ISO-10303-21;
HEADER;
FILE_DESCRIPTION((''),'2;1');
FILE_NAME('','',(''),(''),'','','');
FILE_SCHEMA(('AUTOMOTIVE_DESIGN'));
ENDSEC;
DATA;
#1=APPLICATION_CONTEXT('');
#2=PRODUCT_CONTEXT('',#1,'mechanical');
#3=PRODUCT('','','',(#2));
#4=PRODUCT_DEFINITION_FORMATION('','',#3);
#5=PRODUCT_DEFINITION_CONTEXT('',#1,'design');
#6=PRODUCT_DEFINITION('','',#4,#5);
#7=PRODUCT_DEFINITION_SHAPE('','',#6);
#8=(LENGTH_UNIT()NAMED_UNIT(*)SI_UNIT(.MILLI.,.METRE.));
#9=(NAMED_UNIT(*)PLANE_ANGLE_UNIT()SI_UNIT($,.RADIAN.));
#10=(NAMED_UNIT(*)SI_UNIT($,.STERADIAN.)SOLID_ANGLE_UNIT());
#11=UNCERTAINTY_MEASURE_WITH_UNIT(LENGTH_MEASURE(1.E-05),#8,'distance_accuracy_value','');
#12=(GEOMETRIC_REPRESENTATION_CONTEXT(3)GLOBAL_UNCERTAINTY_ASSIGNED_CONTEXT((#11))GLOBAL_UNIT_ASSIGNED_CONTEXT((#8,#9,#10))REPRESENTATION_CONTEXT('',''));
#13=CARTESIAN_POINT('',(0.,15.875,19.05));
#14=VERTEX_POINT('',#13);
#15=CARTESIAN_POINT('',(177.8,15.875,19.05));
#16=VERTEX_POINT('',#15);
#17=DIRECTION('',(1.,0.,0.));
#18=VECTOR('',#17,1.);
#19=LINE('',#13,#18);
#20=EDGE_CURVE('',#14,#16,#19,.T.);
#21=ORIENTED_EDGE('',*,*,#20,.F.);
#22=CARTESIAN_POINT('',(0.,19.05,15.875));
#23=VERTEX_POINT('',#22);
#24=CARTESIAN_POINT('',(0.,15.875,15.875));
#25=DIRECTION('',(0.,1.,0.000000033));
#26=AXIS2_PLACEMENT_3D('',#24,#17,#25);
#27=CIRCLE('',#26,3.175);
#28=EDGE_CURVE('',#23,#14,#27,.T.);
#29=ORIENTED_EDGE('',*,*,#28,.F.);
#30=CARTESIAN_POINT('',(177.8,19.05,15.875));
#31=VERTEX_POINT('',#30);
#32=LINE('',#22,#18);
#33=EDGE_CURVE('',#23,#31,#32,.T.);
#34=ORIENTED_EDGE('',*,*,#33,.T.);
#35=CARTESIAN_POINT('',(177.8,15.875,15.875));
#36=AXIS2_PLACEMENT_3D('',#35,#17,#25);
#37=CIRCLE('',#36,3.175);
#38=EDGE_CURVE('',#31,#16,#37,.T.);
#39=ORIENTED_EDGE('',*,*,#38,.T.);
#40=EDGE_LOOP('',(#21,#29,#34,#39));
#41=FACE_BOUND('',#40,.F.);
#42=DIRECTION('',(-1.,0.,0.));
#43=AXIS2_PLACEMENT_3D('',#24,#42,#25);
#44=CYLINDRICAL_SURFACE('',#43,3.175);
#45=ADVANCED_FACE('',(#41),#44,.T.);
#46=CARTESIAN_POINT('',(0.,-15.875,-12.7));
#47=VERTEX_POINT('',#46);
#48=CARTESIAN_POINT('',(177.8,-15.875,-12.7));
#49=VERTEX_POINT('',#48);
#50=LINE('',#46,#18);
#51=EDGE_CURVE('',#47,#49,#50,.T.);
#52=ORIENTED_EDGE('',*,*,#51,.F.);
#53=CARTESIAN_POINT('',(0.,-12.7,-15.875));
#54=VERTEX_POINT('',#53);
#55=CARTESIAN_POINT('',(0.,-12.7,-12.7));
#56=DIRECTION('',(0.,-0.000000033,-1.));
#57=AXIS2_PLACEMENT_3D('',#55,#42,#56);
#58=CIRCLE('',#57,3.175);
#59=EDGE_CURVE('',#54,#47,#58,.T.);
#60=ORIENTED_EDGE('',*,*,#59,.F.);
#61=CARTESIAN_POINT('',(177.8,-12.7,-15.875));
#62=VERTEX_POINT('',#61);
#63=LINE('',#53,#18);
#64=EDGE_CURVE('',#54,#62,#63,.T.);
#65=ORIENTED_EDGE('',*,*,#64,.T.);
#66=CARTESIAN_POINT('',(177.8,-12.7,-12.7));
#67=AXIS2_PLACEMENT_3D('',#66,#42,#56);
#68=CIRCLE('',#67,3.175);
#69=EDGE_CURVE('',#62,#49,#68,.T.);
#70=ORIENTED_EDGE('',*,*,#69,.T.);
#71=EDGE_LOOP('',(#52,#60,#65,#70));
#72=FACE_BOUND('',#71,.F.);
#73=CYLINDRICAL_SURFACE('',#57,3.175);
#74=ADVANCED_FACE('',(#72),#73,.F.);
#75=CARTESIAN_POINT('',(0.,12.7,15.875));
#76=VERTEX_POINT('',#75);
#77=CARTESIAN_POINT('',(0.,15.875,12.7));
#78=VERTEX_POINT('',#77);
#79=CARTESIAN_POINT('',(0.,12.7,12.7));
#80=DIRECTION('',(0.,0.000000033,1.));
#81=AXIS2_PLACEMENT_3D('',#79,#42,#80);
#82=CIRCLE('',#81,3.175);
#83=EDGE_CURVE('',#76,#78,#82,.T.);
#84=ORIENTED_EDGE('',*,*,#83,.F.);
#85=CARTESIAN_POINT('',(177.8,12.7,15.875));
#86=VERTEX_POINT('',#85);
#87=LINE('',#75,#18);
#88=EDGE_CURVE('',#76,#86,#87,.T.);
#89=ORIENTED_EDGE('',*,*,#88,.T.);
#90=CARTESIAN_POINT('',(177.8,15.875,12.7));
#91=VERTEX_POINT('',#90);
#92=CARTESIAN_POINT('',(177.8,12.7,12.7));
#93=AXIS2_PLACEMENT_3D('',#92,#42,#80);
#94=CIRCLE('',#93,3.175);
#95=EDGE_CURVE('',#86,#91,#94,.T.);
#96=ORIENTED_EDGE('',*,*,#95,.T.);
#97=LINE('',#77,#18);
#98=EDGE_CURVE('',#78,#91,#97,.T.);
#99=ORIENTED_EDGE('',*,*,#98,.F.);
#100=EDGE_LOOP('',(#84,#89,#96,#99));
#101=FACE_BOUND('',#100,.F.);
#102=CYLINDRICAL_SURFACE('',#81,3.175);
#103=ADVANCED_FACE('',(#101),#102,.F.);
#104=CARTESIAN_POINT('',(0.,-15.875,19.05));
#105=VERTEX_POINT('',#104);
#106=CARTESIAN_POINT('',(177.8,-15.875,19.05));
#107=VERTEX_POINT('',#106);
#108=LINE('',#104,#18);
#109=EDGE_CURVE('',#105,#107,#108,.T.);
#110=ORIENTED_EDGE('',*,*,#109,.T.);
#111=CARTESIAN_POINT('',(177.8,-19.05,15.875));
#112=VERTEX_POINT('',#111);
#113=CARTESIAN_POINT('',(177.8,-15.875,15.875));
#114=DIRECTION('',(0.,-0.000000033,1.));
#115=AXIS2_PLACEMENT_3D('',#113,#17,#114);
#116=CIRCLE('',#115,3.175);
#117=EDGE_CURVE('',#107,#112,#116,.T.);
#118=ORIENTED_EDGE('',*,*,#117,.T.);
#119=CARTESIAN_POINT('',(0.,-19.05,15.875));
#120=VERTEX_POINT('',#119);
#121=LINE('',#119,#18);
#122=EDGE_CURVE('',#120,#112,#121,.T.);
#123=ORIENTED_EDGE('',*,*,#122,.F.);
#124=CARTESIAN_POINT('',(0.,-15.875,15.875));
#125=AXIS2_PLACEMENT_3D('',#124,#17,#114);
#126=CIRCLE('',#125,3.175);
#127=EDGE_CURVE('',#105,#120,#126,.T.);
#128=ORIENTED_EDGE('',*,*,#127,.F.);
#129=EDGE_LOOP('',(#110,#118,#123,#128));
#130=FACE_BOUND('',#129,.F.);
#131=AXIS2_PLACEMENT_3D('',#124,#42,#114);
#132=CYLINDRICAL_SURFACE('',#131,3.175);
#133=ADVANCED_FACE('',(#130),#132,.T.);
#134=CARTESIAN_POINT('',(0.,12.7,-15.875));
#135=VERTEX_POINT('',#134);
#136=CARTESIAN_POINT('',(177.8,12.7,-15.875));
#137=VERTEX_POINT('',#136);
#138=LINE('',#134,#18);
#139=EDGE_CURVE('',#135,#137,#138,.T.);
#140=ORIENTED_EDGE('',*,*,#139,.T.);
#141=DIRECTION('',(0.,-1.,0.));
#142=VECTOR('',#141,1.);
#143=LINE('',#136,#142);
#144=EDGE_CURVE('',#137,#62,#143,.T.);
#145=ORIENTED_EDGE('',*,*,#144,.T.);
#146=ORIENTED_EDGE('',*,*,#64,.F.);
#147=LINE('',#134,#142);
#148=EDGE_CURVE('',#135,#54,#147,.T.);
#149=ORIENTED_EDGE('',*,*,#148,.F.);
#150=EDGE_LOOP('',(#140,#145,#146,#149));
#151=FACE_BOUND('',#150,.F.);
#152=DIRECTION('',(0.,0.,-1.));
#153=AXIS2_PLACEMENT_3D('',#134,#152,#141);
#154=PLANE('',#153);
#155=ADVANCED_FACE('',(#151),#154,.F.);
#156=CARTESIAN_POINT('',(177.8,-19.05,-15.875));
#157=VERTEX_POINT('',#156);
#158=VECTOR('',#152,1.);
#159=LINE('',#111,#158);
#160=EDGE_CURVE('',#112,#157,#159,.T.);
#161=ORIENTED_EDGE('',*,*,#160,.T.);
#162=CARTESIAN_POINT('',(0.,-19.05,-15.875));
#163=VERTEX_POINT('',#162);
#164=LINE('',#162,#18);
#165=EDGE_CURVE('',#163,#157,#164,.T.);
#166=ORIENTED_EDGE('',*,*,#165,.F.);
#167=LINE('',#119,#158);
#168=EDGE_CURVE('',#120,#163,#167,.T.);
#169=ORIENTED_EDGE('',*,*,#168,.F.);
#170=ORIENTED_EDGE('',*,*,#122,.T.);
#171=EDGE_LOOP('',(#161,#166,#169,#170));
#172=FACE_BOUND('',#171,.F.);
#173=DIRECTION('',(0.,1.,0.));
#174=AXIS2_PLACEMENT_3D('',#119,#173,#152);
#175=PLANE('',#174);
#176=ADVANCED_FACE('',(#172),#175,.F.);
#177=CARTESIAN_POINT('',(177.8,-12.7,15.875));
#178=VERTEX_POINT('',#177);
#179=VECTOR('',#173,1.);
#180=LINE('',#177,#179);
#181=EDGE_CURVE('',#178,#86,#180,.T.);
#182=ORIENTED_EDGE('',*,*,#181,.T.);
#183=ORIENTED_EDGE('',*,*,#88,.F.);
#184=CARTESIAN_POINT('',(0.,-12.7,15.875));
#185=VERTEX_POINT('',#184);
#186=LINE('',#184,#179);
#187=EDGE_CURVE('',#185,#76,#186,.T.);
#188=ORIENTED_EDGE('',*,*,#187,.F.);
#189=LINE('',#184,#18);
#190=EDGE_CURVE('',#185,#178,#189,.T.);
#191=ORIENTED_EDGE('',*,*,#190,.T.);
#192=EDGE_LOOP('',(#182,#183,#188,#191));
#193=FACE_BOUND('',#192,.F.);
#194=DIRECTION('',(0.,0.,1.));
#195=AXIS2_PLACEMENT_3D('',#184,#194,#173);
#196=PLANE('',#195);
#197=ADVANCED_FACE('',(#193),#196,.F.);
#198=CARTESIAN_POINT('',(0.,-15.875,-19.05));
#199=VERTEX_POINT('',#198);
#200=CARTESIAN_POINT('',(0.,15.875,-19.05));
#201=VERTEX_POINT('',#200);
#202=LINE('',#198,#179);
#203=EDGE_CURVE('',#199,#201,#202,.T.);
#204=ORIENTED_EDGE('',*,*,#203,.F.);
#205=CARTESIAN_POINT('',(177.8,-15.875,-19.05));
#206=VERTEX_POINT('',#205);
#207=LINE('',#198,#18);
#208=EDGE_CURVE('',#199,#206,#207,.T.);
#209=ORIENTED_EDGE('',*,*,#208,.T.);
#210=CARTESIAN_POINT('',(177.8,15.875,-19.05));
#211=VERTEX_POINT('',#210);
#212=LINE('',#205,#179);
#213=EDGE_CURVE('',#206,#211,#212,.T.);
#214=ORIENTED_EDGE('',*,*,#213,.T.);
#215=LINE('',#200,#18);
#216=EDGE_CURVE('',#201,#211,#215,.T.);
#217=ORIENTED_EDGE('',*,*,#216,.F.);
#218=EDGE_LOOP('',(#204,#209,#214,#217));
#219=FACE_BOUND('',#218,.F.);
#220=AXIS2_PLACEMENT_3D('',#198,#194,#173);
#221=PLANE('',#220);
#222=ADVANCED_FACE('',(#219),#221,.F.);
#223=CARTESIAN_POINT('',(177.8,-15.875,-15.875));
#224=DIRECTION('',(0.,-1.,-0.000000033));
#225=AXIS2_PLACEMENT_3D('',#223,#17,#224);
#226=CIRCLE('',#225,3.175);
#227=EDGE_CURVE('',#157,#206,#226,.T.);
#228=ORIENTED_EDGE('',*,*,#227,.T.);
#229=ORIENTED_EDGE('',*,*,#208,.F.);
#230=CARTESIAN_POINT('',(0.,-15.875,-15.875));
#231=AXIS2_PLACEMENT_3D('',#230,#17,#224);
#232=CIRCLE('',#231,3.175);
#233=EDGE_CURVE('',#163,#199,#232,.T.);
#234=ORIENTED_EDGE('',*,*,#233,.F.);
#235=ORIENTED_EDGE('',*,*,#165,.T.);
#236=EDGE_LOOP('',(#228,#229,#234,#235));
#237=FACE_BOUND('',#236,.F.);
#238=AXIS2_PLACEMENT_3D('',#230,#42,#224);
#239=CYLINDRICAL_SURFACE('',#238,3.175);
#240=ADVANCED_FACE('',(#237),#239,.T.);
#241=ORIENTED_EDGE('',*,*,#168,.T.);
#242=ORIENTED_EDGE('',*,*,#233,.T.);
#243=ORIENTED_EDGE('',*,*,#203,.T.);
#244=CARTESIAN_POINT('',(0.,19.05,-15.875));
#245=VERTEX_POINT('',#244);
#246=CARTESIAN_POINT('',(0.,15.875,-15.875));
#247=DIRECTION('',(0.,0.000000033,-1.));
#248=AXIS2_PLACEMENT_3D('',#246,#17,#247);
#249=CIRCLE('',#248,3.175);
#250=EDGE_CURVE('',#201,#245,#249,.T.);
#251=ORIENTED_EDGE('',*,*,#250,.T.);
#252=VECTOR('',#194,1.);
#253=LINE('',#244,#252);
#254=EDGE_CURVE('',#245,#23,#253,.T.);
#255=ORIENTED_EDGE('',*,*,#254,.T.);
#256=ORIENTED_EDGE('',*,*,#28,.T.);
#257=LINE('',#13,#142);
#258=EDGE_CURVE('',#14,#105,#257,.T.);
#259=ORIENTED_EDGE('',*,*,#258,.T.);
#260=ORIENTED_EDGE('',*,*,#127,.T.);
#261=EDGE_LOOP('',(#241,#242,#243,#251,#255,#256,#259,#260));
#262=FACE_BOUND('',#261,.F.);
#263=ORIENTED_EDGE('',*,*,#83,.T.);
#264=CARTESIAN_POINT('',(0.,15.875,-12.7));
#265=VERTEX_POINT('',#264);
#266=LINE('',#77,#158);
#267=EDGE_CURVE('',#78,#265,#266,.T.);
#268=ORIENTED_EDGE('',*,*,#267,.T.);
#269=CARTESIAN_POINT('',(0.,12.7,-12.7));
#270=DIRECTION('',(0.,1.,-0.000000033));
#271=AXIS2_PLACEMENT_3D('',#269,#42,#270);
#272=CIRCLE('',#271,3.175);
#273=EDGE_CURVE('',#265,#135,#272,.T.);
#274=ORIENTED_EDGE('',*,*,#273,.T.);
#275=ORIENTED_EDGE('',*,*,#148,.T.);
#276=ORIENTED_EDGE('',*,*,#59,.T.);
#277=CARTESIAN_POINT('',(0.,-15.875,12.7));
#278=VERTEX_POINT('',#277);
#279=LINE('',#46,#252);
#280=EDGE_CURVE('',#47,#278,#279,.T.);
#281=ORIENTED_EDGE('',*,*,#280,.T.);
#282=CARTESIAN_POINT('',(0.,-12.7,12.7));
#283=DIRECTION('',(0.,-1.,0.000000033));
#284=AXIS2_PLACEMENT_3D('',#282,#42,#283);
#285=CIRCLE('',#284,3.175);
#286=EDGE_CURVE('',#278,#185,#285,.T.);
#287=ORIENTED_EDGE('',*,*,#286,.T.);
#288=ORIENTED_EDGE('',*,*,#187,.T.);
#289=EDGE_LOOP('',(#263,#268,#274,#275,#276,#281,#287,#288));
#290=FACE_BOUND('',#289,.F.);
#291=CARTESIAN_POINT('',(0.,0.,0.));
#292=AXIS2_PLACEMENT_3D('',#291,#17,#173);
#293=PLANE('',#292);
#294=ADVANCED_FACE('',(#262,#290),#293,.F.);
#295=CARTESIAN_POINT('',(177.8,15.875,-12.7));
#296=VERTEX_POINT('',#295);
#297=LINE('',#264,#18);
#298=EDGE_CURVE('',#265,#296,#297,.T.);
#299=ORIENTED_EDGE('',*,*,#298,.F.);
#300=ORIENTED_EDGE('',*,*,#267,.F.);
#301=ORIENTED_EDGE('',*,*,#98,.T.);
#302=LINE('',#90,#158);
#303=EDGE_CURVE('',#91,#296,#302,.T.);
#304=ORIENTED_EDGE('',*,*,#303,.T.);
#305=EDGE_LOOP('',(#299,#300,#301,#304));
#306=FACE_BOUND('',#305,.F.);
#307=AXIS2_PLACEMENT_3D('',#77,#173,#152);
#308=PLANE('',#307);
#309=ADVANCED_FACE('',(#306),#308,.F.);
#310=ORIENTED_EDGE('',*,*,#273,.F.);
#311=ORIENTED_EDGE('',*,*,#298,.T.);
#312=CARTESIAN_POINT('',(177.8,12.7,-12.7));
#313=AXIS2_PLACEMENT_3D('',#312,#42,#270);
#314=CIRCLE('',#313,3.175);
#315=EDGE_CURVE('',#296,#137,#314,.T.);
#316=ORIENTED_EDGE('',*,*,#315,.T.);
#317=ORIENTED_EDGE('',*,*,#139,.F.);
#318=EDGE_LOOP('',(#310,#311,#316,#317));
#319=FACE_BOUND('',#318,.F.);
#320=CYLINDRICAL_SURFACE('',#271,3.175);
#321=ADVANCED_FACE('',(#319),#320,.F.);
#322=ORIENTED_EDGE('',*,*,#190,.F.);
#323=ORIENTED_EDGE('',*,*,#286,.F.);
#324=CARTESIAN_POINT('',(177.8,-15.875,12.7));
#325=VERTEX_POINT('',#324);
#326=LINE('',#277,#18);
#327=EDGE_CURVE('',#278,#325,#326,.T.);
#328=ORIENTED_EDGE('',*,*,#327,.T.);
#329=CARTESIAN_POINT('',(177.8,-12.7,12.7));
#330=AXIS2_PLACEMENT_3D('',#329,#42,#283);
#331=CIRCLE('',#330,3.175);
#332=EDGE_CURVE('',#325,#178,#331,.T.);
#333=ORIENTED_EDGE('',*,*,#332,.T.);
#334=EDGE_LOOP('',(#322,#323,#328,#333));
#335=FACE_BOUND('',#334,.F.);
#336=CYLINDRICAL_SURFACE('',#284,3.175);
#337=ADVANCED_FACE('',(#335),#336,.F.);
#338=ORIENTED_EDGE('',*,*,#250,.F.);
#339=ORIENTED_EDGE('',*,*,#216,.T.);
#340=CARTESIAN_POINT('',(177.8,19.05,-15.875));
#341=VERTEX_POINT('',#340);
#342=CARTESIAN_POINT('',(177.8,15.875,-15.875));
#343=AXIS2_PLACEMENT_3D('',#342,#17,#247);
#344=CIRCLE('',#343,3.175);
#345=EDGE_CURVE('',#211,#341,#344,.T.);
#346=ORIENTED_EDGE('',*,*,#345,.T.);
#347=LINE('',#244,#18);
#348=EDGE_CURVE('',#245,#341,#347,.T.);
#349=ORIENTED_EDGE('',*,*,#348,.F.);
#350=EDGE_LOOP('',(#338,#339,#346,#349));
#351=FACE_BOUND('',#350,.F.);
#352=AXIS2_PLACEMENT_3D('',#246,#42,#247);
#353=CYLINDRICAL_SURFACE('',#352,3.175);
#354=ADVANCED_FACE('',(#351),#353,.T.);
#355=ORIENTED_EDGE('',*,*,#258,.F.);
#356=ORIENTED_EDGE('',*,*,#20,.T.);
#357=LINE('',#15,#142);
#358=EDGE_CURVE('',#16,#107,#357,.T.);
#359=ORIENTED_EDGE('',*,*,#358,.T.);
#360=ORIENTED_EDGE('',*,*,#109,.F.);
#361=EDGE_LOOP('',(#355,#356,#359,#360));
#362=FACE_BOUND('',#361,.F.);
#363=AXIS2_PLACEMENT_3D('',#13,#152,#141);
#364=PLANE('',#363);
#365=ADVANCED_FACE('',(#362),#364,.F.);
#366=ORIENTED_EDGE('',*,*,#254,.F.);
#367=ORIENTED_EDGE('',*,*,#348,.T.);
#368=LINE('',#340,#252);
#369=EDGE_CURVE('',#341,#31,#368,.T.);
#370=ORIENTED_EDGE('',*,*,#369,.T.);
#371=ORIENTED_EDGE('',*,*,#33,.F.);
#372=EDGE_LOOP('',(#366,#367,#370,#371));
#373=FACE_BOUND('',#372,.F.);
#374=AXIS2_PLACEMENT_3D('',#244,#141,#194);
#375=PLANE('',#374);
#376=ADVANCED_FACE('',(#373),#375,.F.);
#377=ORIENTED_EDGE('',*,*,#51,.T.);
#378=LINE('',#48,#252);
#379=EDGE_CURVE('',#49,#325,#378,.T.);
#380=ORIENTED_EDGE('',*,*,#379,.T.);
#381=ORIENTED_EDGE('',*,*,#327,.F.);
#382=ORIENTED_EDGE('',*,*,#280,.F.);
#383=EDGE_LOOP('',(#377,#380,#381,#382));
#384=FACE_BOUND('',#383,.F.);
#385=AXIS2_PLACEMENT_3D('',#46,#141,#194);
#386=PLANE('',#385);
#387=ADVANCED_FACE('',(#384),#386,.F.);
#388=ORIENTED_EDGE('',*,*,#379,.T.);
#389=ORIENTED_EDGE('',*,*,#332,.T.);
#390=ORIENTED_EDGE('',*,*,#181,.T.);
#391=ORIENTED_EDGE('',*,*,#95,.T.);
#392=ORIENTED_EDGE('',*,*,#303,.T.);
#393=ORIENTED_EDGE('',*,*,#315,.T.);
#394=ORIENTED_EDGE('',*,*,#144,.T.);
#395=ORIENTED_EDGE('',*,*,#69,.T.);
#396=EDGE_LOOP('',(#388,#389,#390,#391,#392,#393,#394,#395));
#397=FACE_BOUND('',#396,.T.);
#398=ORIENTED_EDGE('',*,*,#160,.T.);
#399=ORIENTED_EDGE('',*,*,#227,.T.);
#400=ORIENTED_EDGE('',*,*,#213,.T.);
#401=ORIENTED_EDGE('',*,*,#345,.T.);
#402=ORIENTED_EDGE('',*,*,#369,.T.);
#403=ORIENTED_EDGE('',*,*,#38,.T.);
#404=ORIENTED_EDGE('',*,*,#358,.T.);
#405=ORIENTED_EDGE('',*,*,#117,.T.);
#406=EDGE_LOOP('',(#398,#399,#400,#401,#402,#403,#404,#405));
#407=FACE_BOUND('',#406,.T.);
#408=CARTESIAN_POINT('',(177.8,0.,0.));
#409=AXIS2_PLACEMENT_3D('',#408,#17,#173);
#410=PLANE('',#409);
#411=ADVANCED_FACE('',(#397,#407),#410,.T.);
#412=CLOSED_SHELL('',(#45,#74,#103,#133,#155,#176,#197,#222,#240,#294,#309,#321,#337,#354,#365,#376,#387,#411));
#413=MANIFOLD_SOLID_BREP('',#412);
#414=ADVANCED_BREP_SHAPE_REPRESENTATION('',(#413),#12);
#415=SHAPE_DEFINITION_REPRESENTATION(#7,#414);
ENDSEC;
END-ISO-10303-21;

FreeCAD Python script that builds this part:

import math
import FreeCAD as App
import Part
import Sketcher
Q = App.Units.Quantity

doc = App.newDocument("Part")
body = doc.addObject("PartDesign::Body", "Body")

sketch1 = body.newObject("Sketcher::SketchObject", "Sketch")
sketch1.AttachmentSupport = (doc.getObject("YZ_Plane"), [""])
sketch1.MapMode = "FlatFace"
sketch1.addGeometry([
    Part.ArcOfCircle(Part.Circle(App.Vector(15.9, 15.9, 0), App.Vector(0, 0, 1), 3.2), math.radians(0), math.radians(90)),
    Part.LineSegment(App.Vector(15.9, 19.1, 0), App.Vector(-15.9, 19.1, 0)),
    Part.ArcOfCircle(Part.Circle(App.Vector(-15.9, 15.9, 0), App.Vector(0, 0, 1), 3.2), math.radians(90), math.radians(180)),
    Part.LineSegment(App.Vector(-19.1, 15.9, 0), App.Vector(-19.1, -15.9, 0)),
    Part.ArcOfCircle(Part.Circle(App.Vector(-15.9, -15.9, 0), App.Vector(0, 0, 1), 3.2), math.radians(-180), math.radians(-90)),
    Part.LineSegment(App.Vector(-15.9, -19.1, 0), App.Vector(15.9, -19.1, 0)),
    Part.ArcOfCircle(Part.Circle(App.Vector(15.9, -15.9, 0), App.Vector(0, 0, 1), 3.2), math.radians(-90), math.radians(0)),
    Part.LineSegment(App.Vector(19.1, -15.9, 0), App.Vector(19.1, 15.9, 0)),
    Part.ArcOfCircle(Part.Circle(App.Vector(-12.7, 12.7, 0), App.Vector(0, 0, 1), 3.2), math.radians(90), math.radians(180)),
    Part.LineSegment(App.Vector(-12.7, 15.9, 0), App.Vector(12.7, 15.9, 0)),
    Part.ArcOfCircle(Part.Circle(App.Vector(12.7, 12.7, 0), App.Vector(0, 0, 1), 3.2), math.radians(0), math.radians(90)),
    Part.LineSegment(App.Vector(15.9, 12.7, 0), App.Vector(15.9, -12.7, 0)),
    Part.ArcOfCircle(Part.Circle(App.Vector(12.7, -12.7, 0), App.Vector(0, 0, 1), 3.2), math.radians(-90), math.radians(0)),
    Part.LineSegment(App.Vector(12.7, -15.9, 0), App.Vector(-12.7, -15.9, 0)),
    Part.ArcOfCircle(Part.Circle(App.Vector(-12.7, -12.7, 0), App.Vector(0, 0, 1), 3.2), math.radians(-180), math.radians(-90)),
    Part.LineSegment(App.Vector(-15.9, -12.7, 0), App.Vector(-15.9, 12.7, 0)),
], False)
sketch1.addConstraint([
    Sketcher.Constraint("Tangent", 0, 2, 1, 1),
    Sketcher.Constraint("Tangent", 1, 2, 2, 1),
    Sketcher.Constraint("Tangent", 2, 2, 3, 1),
    Sketcher.Constraint("Tangent", 3, 2, 4, 1),
    Sketcher.Constraint("Tangent", 4, 2, 5, 1),
    Sketcher.Constraint("Tangent", 5, 2, 6, 1),
    Sketcher.Constraint("Tangent", 6, 2, 7, 1),
    Sketcher.Constraint("Tangent", 7, 2, 0, 1),
    Sketcher.Constraint("Tangent", 8, 1, 9, 1),
    Sketcher.Constraint("Tangent", 9, 2, 10, 2),
    Sketcher.Constraint("Tangent", 10, 1, 11, 1),
    Sketcher.Constraint("Tangent", 11, 2, 12, 2),
    Sketcher.Constraint("Tangent", 12, 1, 13, 1),
    Sketcher.Constraint("Tangent", 13, 2, 14, 2),
    Sketcher.Constraint("Tangent", 14, 1, 15, 1),
    Sketcher.Constraint("Tangent", 15, 2, 8, 2),
    Sketcher.Constraint("Horizontal", 1),
    Sketcher.Constraint("Vertical", 3),
    Sketcher.Constraint("Horizontal", 5),
    Sketcher.Constraint("Vertical", 7),
    Sketcher.Constraint("Horizontal", 9),
    Sketcher.Constraint("Vertical", 11),
    Sketcher.Constraint("Horizontal", 13),
    Sketcher.Constraint("Vertical", 15),
    Sketcher.Constraint("Equal", 0, 2),
    Sketcher.Constraint("Equal", 2, 4),
    Sketcher.Constraint("Equal", 4, 6),
    Sketcher.Constraint("Equal", 6, 8),
    Sketcher.Constraint("Equal", 8, 10),
    Sketcher.Constraint("Equal", 10, 12),
    Sketcher.Constraint("Equal", 12, 14),
    Sketcher.Constraint("Symmetric", 0, 3, 4, 3, -1, 1),
    Sketcher.Constraint("Symmetric", 8, 3, 12, 3, -1, 1),
    Sketcher.Constraint("Horizontal", 7, 2, 8, 1),
    Sketcher.Constraint("Vertical", 5, 2, 10, 1),
    Sketcher.Constraint("Equal", 5, 3),
    Sketcher.Constraint("DistanceX", 9, 1, 9, 2, Q("1 in")),
    Sketcher.Constraint("Radius", 0, Q("0.125 in")),
])
pad1 = body.newObject("PartDesign::Pad", "Pad")
pad1.Profile = sketch1
pad1.Length = Q("7 in")

doc.recompute()
